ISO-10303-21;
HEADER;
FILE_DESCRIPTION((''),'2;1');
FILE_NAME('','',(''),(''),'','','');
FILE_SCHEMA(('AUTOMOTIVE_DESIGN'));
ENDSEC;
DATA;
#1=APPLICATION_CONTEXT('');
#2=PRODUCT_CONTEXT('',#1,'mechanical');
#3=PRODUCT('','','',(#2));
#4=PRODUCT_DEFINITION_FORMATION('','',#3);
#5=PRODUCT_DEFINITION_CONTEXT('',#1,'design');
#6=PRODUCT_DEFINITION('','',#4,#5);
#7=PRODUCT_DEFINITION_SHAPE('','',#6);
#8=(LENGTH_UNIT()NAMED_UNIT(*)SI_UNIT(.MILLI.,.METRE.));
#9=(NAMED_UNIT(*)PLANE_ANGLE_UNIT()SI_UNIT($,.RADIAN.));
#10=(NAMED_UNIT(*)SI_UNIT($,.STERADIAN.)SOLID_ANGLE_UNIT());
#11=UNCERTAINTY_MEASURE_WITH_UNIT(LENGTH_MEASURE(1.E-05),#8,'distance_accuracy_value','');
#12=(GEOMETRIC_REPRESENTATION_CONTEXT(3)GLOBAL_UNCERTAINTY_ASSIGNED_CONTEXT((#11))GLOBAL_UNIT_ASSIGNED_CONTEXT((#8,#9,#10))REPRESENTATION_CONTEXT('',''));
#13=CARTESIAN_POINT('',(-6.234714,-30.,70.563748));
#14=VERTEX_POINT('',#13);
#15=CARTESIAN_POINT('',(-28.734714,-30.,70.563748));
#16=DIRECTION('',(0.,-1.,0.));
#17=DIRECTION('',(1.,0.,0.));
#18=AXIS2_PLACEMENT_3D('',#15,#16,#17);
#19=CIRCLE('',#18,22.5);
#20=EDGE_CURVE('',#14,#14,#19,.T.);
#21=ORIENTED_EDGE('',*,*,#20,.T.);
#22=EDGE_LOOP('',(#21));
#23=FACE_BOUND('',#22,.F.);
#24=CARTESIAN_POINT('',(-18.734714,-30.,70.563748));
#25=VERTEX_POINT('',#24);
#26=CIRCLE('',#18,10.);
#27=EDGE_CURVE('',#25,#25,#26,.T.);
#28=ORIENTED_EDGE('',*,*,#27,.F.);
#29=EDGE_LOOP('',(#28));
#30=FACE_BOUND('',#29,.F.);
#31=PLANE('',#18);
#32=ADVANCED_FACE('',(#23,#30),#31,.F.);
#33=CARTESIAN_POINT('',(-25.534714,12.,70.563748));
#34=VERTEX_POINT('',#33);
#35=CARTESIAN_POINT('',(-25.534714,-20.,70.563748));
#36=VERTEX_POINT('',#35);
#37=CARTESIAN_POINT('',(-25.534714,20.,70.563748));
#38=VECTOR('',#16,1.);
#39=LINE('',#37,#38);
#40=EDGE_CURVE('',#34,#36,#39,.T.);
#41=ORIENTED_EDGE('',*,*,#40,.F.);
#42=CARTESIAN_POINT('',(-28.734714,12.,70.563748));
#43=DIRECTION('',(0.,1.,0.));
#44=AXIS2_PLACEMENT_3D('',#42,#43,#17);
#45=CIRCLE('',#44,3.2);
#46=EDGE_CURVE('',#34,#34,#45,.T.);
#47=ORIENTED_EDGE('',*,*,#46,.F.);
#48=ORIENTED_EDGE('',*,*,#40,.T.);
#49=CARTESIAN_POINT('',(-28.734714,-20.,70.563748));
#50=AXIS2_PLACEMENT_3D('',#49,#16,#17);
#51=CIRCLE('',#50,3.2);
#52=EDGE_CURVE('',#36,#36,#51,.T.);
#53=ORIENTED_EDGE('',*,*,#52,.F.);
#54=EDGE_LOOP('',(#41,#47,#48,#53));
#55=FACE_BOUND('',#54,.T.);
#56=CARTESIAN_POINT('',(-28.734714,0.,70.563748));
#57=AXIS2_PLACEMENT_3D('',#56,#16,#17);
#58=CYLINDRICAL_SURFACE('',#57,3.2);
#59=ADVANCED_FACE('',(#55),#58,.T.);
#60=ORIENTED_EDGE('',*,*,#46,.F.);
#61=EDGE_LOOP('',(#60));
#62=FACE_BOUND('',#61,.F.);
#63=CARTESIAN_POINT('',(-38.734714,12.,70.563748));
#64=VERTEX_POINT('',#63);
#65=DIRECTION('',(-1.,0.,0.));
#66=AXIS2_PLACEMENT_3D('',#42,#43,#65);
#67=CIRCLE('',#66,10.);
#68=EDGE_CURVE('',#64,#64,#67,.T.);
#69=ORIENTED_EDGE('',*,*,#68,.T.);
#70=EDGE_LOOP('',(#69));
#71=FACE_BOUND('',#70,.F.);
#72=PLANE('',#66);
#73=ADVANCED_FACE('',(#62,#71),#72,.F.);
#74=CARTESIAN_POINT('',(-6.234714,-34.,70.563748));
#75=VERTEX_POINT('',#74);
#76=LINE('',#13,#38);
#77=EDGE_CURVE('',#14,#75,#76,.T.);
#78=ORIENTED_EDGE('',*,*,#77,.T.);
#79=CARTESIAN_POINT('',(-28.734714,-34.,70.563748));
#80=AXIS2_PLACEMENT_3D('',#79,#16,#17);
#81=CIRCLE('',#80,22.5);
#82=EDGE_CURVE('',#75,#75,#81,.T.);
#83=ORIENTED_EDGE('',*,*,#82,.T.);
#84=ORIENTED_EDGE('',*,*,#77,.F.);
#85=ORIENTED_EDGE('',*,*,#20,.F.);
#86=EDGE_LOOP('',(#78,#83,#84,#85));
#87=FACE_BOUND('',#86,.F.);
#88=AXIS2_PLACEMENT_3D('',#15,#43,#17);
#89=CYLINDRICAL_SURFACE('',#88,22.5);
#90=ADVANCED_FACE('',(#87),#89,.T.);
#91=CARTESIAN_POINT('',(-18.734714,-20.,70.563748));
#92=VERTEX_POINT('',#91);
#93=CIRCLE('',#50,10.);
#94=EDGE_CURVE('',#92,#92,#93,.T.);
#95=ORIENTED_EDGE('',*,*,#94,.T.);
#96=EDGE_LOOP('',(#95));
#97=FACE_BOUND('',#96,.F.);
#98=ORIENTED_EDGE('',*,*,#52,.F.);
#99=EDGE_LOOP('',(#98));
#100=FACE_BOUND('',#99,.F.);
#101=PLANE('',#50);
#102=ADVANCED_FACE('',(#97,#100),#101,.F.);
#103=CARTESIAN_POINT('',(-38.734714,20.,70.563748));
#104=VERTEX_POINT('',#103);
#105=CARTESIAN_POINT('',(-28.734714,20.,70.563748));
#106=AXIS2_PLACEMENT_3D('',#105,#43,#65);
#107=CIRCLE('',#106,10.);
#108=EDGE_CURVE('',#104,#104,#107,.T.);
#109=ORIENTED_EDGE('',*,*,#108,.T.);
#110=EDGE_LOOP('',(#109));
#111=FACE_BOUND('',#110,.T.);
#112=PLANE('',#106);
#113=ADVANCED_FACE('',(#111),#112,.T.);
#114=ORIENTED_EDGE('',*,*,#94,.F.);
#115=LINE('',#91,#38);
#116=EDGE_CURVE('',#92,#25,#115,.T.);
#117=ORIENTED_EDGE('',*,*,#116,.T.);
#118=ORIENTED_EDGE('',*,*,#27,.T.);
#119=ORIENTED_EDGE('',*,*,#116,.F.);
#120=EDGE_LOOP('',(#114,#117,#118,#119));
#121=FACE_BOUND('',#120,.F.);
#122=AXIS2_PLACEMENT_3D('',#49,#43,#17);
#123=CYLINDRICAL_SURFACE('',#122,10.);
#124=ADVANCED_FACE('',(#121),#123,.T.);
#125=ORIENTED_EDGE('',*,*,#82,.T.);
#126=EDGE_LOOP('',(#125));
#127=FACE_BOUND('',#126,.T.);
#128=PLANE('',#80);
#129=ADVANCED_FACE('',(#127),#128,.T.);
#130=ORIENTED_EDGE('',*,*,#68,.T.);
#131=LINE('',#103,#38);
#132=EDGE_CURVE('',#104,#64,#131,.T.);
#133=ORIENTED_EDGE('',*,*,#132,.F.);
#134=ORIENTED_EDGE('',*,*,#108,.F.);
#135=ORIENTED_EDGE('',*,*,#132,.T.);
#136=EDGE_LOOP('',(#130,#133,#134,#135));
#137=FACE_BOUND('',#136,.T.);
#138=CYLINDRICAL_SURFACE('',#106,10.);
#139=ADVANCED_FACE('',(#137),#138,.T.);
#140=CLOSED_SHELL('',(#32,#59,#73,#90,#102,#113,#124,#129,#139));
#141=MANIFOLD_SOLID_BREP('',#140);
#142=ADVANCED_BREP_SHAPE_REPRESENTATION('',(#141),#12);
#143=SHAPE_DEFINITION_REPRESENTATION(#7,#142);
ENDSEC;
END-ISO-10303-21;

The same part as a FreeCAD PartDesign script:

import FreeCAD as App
import Part
import Sketcher

V = App.Vector
Q = App.Units.Quantity

doc = App.newDocument("Part")
body = doc.addObject("PartDesign::Body", "Body")

# Sketch on XZ plane
sketch1 = body.newObject("Sketcher::SketchObject", "Sketch")
sketch1.AttachmentSupport = (doc.getObject("XZ_Plane"), [""])
sketch1.MapMode = "FlatFace"
sketch1.addGeometry(Part.Circle(V(-28.7, 70.6, 0), V(0, 0, 1), 3.2), False)
sketch1.addConstraint([
    Sketcher.Constraint("Diameter", 0, Q("6.4 mm")),
    Sketcher.Constraint("DistanceY", -1, 1, 0, 3, Q("70.563748 mm")),
    Sketcher.Constraint("DistanceX", 0, 3, -1, 1, Q("28.734714 mm")),
])
pad1 = body.newObject("PartDesign::Pad", "Pad")
pad1.Profile = sketch1
pad1.Length = 40
pad1.Midplane = True

# Sketch on XZ plane
sketch2 = body.newObject("Sketcher::SketchObject", "Sketch001")
sketch2.AttachmentSupport = (doc.getObject("XZ_Plane"), [""])
sketch2.MapMode = "FlatFace"
sketch2.AttachmentOffset = App.Placement(V(0, 0, 20), App.Rotation())
sketch2.addGeometry(Part.Circle(V(-29, 71, 0), V(0, 0, 1), 10), False)
sketch2.addConstraint([
    Sketcher.Constraint("Diameter", 0, Q("20 mm")),
    Sketcher.Constraint("DistanceY", -1, 1, 0, 3, Q("70.563748 mm")),
    Sketcher.Constraint("DistanceX", 0, 3, -1, 1, Q("28.734714 mm")),
])
pad2 = body.newObject("PartDesign::Pad", "Pad001")
pad2.Profile = sketch2
pad2.Length = 10

# Sketch on XZ plane
sketch3 = body.newObject("Sketcher::SketchObject", "Sketch002")
sketch3.AttachmentSupport = (doc.getObject("XZ_Plane"), [""])
sketch3.MapMode = "FlatFace"
sketch3.AttachmentOffset = App.Placement(V(0, 0, 30), App.Rotation())
sketch3.addGeometry(Part.Circle(V(-29, 71, 0), V(0, 0, 1), 22), False)
sketch3.addConstraint([
    Sketcher.Constraint("Diameter", 0, Q("45 mm")),
    Sketcher.Constraint("DistanceY", -1, 1, 0, 3, Q("70.563748 mm")),
    Sketcher.Constraint("DistanceX", 0, 3, -1, 1, Q("28.734714 mm")),
])
pad3 = body.newObject("PartDesign::Pad", "Pad002")
pad3.Profile = sketch3
pad3.Length = 4

# Sketch on XZ plane
sketch4 = body.newObject("Sketcher::SketchObject", "Sketch003")
sketch4.AttachmentSupport = (doc.getObject("XZ_Plane"), [""])
sketch4.MapMode = "FlatFace"
sketch4.AttachmentOffset = App.Placement(V(0, 0, -20), App.Rotation())
sketch4.addGeometry([
    Part.Circle(V(-28.7, 70.6, 0), V(0, 0, 1), 10),
    Part.Circle(V(-28.7, 70.6, 0), V(0, 0, 1), 3.2),
], False)
sketch4.addConstraint([
    Sketcher.Constraint("Coincident", 1, 3, 0, 3),
    Sketcher.Constraint("Diameter", 0, Q("20 mm")),
    Sketcher.Constraint("Diameter", 1, Q("6.4 mm")),
    Sketcher.Constraint("DistanceY", -1, 1, 0, 3, Q("70.563748 mm")),
    Sketcher.Constraint("DistanceX", 0, 3, -1, 1, Q("28.734714 mm")),
])
pad4 = body.newObject("PartDesign::Pad", "Pad003")
pad4.Profile = sketch4
pad4.Length = 8

doc.recompute()
